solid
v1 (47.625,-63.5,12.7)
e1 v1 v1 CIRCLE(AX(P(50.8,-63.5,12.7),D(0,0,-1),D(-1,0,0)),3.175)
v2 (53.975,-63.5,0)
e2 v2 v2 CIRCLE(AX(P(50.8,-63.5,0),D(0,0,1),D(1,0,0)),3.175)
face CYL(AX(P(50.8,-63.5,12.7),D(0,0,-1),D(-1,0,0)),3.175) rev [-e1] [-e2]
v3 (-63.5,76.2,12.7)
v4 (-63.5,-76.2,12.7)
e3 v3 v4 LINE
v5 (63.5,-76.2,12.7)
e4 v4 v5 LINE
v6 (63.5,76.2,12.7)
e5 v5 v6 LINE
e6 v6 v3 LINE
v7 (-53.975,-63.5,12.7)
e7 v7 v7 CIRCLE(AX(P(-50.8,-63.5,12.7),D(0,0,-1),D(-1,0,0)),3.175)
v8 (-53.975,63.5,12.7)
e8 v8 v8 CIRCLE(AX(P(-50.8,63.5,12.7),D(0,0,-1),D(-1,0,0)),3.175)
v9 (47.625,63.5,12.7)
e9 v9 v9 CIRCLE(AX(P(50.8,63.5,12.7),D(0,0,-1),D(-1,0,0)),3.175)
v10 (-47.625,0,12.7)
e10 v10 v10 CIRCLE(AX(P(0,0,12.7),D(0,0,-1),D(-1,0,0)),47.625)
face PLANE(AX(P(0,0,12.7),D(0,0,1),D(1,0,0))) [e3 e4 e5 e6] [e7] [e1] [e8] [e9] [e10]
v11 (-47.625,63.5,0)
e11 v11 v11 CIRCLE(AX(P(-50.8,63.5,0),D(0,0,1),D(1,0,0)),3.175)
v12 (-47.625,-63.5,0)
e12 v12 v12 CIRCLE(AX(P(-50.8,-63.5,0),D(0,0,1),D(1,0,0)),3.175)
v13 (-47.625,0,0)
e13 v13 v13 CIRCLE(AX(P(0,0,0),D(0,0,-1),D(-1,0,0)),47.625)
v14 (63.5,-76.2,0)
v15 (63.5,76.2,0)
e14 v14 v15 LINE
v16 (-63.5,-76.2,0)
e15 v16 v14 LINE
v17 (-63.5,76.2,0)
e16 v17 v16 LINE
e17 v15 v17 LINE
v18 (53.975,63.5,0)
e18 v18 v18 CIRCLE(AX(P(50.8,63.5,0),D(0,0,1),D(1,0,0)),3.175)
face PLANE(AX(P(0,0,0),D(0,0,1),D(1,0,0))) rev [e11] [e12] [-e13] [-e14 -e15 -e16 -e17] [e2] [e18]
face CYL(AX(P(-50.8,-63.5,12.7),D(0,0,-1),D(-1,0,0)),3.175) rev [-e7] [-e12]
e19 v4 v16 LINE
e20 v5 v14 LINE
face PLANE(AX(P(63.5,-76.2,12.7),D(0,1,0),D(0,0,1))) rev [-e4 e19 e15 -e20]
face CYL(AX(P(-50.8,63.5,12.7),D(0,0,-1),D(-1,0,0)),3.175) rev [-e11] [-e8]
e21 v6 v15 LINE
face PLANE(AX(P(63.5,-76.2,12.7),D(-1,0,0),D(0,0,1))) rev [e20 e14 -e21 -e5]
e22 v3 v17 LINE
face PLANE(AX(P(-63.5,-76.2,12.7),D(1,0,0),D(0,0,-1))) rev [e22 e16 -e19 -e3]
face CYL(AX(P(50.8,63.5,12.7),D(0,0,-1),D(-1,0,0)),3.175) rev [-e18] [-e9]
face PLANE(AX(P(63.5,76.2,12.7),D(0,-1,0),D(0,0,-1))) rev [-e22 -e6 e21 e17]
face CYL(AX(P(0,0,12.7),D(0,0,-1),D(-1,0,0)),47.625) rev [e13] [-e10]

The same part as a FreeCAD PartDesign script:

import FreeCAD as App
import Part
import Sketcher
Q = App.Units.Quantity


def add_polygon(sketch, points):
    """Adds a closed chain of lines whose ends are joined by coincident constraints."""
    first, n = sketch.GeometryCount, len(points)
    for a, b in zip(points, points[1:] + points[:1]):
        sketch.addGeometry(Part.LineSegment(App.Vector(*a, 0), App.Vector(*b, 0)), False)
    for i in range(n):
        sketch.addConstraint(Sketcher.Constraint("Coincident", first + i, 2, first + (i + 1) % n, 1))

doc = App.newDocument("Part")
params = doc.addObject("Spreadsheet::Sheet", "Params")
for row, (alias, value) in enumerate([
    ("sketch1_width", "5 in"),
    ("sketch1_height", "6 in"),
    ("pad1_length", "0.5 in"),
    ("sketch2_diameter", "3.75 in"),
    ("sketch3_diameter", "0.25 in"),
], start=1):
    params.set(f"A{row}", alias)
    params.set(f"B{row}", "=" + value)
    params.setAlias(f"B{row}", alias)

body = doc.addObject("PartDesign::Body", "Body")

# Sketch on XY plane
sketch1 = doc.addObject("Sketcher::SketchObject", "Sketch")
body.addObject(sketch1)
sketch1.AttachmentSupport = (doc.XY_Plane, [""])
sketch1.MapMode = "FlatFace"
add_polygon(sketch1, [(-63.5, 76.2), (-63.5, -76.2), (63.5, -76.2), (63.5, 76.2)])  # lines 0-3
sketch1.addConstraint(Sketcher.Constraint("Vertical", 0))
sketch1.addConstraint(Sketcher.Constraint("Horizontal", 1))
sketch1.addConstraint(Sketcher.Constraint("Vertical", 2))
sketch1.addConstraint(Sketcher.Constraint("Horizontal", 3))
sketch1.addConstraint(Sketcher.Constraint("Symmetric", 0, 2, 2, 2, -1, 1))
sketch1.addConstraint(Sketcher.Constraint("DistanceX", 1, 1, 1, 2, Q("5 in")))
sketch1.addConstraint(Sketcher.Constraint("DistanceY", 0, 2, 0, 1, Q("6 in")))
sketch1.setExpression("Constraints[9]", "Params.sketch1_width")
sketch1.setExpression("Constraints[10]", "Params.sketch1_height")
pad1 = doc.addObject("PartDesign::Pad", "Pad")
body.addObject(pad1)
pad1.Profile = sketch1
pad1.setExpression("Length", "Params.pad1_length")

# Sketch on XY plane
sketch2 = doc.addObject("Sketcher::SketchObject", "Sketch001")
body.addObject(sketch2)
sketch2.AttachmentSupport = (doc.XY_Plane, [""])
sketch2.MapMode = "FlatFace"
sketch2.addGeometry(Part.Circle(App.Vector(0, 0, 0), App.Vector(0, 0, 1), 47.625), False)
sketch2.addConstraint(Sketcher.Constraint("Coincident", 0, 3, -1, 1))
sketch2.addConstraint(Sketcher.Constraint("Diameter", 0, Q("3.75 in")))
sketch2.setExpression("Constraints[1]", "Params.sketch2_diameter")
pocket1 = doc.addObject("PartDesign::Pocket", "Pocket")
body.addObject(pocket1)
pocket1.Profile = sketch2
pocket1.Type = "ThroughAll"
pocket1.Reversed = True

# Sketch on XY plane
sketch3 = doc.addObject("Sketcher::SketchObject", "Sketch002")
body.addObject(sketch3)
sketch3.AttachmentSupport = (doc.XY_Plane, [""])
sketch3.MapMode = "FlatFace"
sketch3.addGeometry(Part.Circle(App.Vector(50.8, 63.5, 0), App.Vector(0, 0, 1), 3.175), False)
sketch3.addGeometry(Part.Circle(App.Vector(-50.8, 63.5, 0), App.Vector(0, 0, 1), 3.175), False)
sketch3.addGeometry(Part.Circle(App.Vector(-50.8, -63.5, 0), App.Vector(0, 0, 1), 3.175), False)
sketch3.addGeometry(Part.Circle(App.Vector(50.8, -63.5, 0), App.Vector(0, 0, 1), 3.175), False)
sketch3.addConstraint(Sketcher.Constraint("Equal", 0, 1))
sketch3.addConstraint(Sketcher.Constraint("Equal", 1, 2))
sketch3.addConstraint(Sketcher.Constraint("Equal", 2, 3))
sketch3.addConstraint(Sketcher.Constraint("Symmetric", 0, 3, 2, 3, -1, 1))
sketch3.addConstraint(Sketcher.Constraint("Symmetric", 1, 3, 3, 3, -1, 1))
sketch3.addConstraint(Sketcher.Constraint("Symmetric", 0, 3, 1, 3, -2))
sketch3.addConstraint(Sketcher.Constraint("Diameter", 0, Q("0.25 in")))
sketch3.addConstraint(Sketcher.Constraint("DistanceX", -1, 1, 0, 3, Q("2 in")))
sketch3.addConstraint(Sketcher.Constraint("DistanceY", 2, 3, 1, 3, Q("5 in")))
sketch3.setExpression("Constraints[6]", "Params.sketch3_diameter")
pocket2 = doc.addObject("PartDesign::Pocket", "Pocket001")
body.addObject(pocket2)
pocket2.Profile = sketch3
pocket2.Type = "ThroughAll"
pocket2.Midplane = True

doc.recompute()
